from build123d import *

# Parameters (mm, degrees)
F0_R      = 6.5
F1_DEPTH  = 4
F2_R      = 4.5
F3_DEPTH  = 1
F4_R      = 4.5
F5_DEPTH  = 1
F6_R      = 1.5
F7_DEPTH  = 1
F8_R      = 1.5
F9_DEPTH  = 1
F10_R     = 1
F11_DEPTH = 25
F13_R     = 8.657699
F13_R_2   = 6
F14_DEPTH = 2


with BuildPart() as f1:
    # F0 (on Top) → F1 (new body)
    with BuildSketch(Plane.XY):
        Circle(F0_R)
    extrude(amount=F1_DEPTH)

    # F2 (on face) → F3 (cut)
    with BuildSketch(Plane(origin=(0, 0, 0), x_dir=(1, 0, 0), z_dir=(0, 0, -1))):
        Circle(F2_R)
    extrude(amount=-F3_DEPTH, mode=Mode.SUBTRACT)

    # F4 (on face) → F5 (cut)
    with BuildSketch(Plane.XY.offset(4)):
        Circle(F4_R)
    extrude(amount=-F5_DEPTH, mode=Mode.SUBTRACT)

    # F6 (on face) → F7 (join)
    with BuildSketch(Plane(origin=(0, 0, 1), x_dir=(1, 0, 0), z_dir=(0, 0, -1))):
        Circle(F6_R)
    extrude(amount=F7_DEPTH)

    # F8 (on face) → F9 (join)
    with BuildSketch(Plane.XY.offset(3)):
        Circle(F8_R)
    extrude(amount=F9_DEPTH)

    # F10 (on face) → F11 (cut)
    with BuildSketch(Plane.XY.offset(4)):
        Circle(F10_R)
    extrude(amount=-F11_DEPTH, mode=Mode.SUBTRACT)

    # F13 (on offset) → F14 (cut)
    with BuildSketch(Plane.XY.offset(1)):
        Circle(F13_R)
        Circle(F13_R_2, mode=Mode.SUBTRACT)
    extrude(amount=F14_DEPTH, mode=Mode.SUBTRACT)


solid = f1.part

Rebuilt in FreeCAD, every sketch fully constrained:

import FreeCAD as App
import Part
import Sketcher

V = App.Vector
Q = App.Units.Quantity

doc = App.newDocument("Part")
body = doc.addObject("PartDesign::Body", "Body")

sketch1 = body.newObject("Sketcher::SketchObject", "Sketch")
sketch1.AttachmentSupport = (doc.getObject("XY_Plane"), [""])
sketch1.MapMode = "FlatFace"
sketch1.addGeometry(Part.Circle(V(0, 0, 0), V(0, 0, 1), 6), False)
sketch1.addConstraint([
    Sketcher.Constraint("Coincident", 0, 3, -1, 1),
    Sketcher.Constraint("Diameter", 0, Q("13 mm")),
])
pad1 = body.newObject("PartDesign::Pad", "Pad")
pad1.Profile = sketch1
pad1.Length = 4

sketch2 = body.newObject("Sketcher::SketchObject", "Sketch001")
sketch2.AttachmentSupport = (doc.getObject("XY_Plane"), [""])
sketch2.MapMode = "FlatFace"
sketch2.addGeometry(Part.Circle(V(0, 0, 0), V(0, 0, 1), 4.5), False)
sketch2.addConstraint([
    Sketcher.Constraint("Coincident", 0, 3, -1, 1),
    Sketcher.Constraint("Diameter", 0, Q("9 mm")),
])
pocket1 = body.newObject("PartDesign::Pocket", "Pocket")
pocket1.Profile = sketch2
pocket1.Length = 1
pocket1.Reversed = True

sketch3 = body.newObject("Sketcher::SketchObject", "Sketch002")
sketch3.AttachmentSupport = (doc.getObject("XY_Plane"), [""])
sketch3.MapMode = "FlatFace"
sketch3.AttachmentOffset = App.Placement(V(0, 0, 4), App.Rotation())
sketch3.addGeometry(Part.Circle(V(0, 0, 0), V(0, 0, 1), 4.5), False)
sketch3.addConstraint([
    Sketcher.Constraint("Coincident", 0, 3, -1, 1),
    Sketcher.Constraint("Diameter", 0, Q("9 mm")),
])
pocket2 = body.newObject("PartDesign::Pocket", "Pocket001")
pocket2.Profile = sketch3
pocket2.Length = 1

sketch4 = body.newObject("Sketcher::SketchObject", "Sketch003")
sketch4.AttachmentSupport = (doc.getObject("XY_Plane"), [""])
sketch4.MapMode = "FlatFace"
sketch4.AttachmentOffset = App.Placement(V(0, 0, 1), App.Rotation())
sketch4.addGeometry(Part.Circle(V(0, 0, 0), V(0, 0, 1), 1.5), False)
sketch4.addConstraint([
    Sketcher.Constraint("Coincident", 0, 3, -1, 1),
    Sketcher.Constraint("Diameter", 0, Q("3 mm")),
])
pad2 = body.newObject("PartDesign::Pad", "Pad001")
pad2.Profile = sketch4
pad2.Length = 1
pad2.Reversed = True

sketch5 = body.newObject("Sketcher::SketchObject", "Sketch004")
sketch5.AttachmentSupport = (doc.getObject("XY_Plane"), [""])
sketch5.MapMode = "FlatFace"
sketch5.AttachmentOffset = App.Placement(V(0, 0, 3), App.Rotation())
sketch5.addGeometry(Part.Circle(V(0, 0, 0), V(0, 0, 1), 1.5), False)
sketch5.addConstraint([
    Sketcher.Constraint("Coincident", 0, 3, -1, 1),
    Sketcher.Constraint("Diameter", 0, Q("3 mm")),
])
pad3 = body.newObject("PartDesign::Pad", "Pad002")
pad3.Profile = sketch5
pad3.Length = 1

sketch6 = body.newObject("Sketcher::SketchObject", "Sketch005")
sketch6.AttachmentSupport = (doc.getObject("XY_Plane"), [""])
sketch6.MapMode = "FlatFace"
sketch6.AttachmentOffset = App.Placement(V(0, 0, 4), App.Rotation())
sketch6.addGeometry(Part.Circle(V(0, 0, 0), V(0, 0, 1), 1), False)
sketch6.addConstraint([
    Sketcher.Constraint("Coincident", 0, 3, -1, 1),
    Sketcher.Constraint("Diameter", 0, Q("2 mm")),
])
pocket3 = body.newObject("PartDesign::Pocket", "Pocket002")
pocket3.Profile = sketch6
pocket3.Length = 25

sketch7 = body.newObject("Sketcher::SketchObject", "Sketch006")
sketch7.AttachmentSupport = (doc.getObject("XY_Plane"), [""])
sketch7.MapMode = "FlatFace"
sketch7.AttachmentOffset = App.Placement(V(0, 0, 1), App.Rotation())
sketch7.addGeometry([
    Part.Circle(V(0, 0, 0), V(0, 0, 1), 9),
    Part.Circle(V(0, 0, 0), V(0, 0, 1), 6),
], False)
sketch7.addConstraint([
    Sketcher.Constraint("Coincident", 0, 3, -1, 1),
    Sketcher.Constraint("Coincident", 1, 3, -1, 1),
    Sketcher.Constraint("Diameter", 1, Q("12 mm")),
    Sketcher.Constraint("Diameter", 0, Q("17.315398 mm")),
])
pocket4 = body.newObject("PartDesign::Pocket", "Pocket003")
pocket4.Profile = sketch7
pocket4.Length = 2
pocket4.Reversed = True

doc.recompute()
